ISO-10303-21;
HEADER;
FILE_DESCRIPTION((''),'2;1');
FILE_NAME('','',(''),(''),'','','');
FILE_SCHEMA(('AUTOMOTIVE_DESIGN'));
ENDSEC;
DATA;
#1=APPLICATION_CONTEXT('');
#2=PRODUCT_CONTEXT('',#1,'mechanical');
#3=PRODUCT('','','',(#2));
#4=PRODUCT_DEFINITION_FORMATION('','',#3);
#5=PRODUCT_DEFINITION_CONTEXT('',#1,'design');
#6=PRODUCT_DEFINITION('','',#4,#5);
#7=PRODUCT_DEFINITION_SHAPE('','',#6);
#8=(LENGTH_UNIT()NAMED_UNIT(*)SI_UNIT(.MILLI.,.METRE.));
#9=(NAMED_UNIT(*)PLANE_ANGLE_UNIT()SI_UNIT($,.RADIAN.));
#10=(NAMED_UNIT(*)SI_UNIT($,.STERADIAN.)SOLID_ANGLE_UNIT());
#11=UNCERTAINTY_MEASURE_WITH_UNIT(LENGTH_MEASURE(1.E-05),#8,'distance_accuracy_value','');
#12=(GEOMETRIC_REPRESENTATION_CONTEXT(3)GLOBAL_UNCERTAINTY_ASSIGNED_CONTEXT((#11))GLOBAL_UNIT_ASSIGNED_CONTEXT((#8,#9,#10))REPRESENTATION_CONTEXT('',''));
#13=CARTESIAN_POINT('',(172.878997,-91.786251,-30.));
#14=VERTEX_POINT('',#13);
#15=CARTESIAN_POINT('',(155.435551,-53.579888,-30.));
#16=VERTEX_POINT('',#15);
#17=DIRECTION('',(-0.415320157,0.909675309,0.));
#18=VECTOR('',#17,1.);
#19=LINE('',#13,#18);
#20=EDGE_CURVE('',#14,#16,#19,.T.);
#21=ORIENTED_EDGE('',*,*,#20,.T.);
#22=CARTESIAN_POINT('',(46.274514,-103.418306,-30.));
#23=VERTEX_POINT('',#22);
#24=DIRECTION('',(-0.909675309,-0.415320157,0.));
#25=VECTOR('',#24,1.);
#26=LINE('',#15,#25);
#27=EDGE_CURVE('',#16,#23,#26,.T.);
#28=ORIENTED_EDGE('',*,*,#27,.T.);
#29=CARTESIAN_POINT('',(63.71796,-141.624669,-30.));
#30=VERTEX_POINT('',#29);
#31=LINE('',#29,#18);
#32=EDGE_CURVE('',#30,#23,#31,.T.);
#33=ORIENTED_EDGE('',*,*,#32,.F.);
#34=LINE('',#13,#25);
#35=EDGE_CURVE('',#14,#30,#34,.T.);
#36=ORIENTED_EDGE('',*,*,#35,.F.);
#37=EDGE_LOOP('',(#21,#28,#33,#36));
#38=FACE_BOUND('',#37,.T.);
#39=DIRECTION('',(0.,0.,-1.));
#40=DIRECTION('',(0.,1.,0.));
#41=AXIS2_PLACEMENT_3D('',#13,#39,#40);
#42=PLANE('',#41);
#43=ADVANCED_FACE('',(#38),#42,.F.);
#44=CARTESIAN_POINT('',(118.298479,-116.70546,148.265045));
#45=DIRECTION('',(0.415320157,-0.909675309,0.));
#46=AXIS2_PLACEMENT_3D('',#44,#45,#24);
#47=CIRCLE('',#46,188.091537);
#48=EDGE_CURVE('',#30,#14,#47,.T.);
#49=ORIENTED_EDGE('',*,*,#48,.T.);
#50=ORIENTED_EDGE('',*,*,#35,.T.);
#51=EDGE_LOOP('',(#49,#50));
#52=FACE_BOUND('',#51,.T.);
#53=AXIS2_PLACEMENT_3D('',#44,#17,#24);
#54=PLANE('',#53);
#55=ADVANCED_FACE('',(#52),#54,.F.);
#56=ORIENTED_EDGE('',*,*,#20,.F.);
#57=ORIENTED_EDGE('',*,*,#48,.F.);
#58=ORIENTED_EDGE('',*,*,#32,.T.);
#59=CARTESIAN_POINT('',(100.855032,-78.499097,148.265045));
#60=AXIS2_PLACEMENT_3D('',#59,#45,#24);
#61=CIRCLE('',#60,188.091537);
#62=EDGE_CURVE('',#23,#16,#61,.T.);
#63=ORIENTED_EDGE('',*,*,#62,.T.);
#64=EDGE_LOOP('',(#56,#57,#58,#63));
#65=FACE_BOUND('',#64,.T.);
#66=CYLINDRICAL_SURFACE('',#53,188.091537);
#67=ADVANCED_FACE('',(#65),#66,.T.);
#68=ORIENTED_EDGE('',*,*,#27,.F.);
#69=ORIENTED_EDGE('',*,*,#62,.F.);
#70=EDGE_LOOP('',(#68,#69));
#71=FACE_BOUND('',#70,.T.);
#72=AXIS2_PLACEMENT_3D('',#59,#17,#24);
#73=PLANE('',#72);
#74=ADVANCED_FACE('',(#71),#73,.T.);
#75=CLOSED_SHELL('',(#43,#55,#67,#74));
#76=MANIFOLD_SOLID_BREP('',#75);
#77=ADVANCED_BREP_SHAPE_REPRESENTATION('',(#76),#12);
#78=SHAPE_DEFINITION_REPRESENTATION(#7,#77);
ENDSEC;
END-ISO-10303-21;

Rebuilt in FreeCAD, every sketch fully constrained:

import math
import FreeCAD as App
import Part
import Sketcher

doc = App.newDocument("Part")
body = doc.addObject("PartDesign::Body", "Body")

sketch1 = doc.addObject("Sketcher::SketchObject", "Sketch")
body.addObject(sketch1)
sketch1.Placement = App.Placement(App.Vector(55.77576, -122.16559, 0), App.Rotation(App.Vector(0, 0, -1), App.Vector(0.909675309, 0.415320157, 0), App.Vector(0.415320157, -0.909675309, 0), "ZXY"))
sketch1.addGeometry([
    Part.LineSegment(App.Vector(30, 119, 0), App.Vector(30, -1, 0)),
    Part.ArcOfCircle(Part.Circle(App.Vector(-148, 59, 0), App.Vector(0, 0, 1), 188), math.radians(-19), math.radians(19)),
], False)
sketch1.addConstraint([
    Sketcher.Constraint("Coincident", 0, 1, 1, 2),
    Sketcher.Constraint("Coincident", 1, 1, 0, 2),
    Sketcher.Constraint("Vertical", 0),
    Sketcher.Constraint("DistanceY", 0, 2, 0, 1, 120.0),
    Sketcher.Constraint("DistanceX", -1, 1, 0, 1, 30.0),
    Sketcher.Constraint("Radius", 1, 188.091537),
    Sketcher.Constraint("DistanceY", -1, 1, 1, 3, 59.143075),
])
pad1 = doc.addObject("PartDesign::Pad", "Pad")
body.addObject(pad1)
pad1.Profile = sketch1
pad1.Type = "TwoLengths"
pad1.Length = 21
pad1.Length2 = 21

doc.recompute()
